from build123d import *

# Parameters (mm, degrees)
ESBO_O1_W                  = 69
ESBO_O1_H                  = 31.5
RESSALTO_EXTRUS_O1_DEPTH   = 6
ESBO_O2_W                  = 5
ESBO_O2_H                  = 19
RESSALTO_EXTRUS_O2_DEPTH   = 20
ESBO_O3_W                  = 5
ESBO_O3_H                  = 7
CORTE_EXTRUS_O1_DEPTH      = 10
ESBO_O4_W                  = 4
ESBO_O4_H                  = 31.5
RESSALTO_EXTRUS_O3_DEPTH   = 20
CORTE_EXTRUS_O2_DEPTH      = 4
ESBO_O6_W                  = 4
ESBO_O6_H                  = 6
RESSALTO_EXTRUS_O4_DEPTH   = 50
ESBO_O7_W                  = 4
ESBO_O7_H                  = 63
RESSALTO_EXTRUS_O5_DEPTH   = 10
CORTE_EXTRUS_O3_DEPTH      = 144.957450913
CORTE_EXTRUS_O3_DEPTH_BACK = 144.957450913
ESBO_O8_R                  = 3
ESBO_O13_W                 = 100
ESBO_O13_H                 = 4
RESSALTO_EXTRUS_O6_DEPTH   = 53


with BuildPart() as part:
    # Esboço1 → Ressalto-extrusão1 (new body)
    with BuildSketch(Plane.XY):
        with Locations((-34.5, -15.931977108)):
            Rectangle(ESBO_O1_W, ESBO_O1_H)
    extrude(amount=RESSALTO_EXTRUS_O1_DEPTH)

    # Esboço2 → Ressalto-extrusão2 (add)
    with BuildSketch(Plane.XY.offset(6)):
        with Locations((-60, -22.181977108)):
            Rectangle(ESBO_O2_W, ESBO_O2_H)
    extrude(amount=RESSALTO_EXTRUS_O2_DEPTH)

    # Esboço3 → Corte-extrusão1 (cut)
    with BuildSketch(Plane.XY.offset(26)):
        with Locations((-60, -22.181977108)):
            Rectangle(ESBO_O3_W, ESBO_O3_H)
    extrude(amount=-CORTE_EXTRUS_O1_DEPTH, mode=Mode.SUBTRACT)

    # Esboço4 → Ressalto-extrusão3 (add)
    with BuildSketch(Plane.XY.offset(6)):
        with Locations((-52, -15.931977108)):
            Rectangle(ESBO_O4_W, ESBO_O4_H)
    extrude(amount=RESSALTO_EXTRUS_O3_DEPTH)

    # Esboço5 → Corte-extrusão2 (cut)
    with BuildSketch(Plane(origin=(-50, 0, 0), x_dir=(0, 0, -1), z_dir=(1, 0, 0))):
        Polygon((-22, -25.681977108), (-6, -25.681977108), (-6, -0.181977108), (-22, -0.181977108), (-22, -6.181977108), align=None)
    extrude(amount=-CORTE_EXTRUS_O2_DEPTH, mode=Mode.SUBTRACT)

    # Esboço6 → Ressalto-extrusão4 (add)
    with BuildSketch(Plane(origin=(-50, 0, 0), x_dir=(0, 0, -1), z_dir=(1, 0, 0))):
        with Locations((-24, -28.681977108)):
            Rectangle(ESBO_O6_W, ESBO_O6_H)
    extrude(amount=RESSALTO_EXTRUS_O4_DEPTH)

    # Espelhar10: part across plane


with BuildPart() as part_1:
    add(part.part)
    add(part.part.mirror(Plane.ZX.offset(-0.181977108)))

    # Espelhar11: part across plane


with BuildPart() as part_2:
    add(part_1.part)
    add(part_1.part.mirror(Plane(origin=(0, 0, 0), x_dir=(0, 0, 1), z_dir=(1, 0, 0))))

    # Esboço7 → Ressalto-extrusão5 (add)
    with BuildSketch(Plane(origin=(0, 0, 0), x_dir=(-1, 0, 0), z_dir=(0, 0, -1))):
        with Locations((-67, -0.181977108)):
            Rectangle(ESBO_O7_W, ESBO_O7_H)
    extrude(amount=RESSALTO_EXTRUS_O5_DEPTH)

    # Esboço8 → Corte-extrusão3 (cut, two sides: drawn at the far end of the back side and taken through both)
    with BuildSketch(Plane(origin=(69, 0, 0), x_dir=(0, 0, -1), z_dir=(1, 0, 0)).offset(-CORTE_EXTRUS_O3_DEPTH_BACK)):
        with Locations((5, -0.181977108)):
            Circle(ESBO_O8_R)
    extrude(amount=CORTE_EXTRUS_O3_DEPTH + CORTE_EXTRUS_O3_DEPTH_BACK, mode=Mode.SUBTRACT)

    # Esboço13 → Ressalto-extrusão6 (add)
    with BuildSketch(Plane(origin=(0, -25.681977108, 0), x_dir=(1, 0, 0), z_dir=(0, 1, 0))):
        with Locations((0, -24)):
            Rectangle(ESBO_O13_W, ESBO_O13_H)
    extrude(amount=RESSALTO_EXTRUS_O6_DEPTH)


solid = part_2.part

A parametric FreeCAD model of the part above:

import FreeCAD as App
import Part
import Sketcher
Q = App.Units.Quantity

doc = App.newDocument("Part")
params = doc.addObject("Spreadsheet::Sheet", "Params")
for row, (alias, value) in enumerate([
    ("sketch1_width", "69 mm"),
    ("sketch1_height", "31.5 mm"),
    ("pad1_length", "6 mm"),
    ("sketch2_width", "5 mm"),
    ("sketch2_height", "19 mm"),
    ("pad2_length", "20 mm"),
    ("sketch3_width", "5 mm"),
    ("sketch3_height", "7 mm"),
    ("pocket1_length", "10 mm"),
    ("sketch4_width", "4 mm"),
    ("sketch4_height", "31.5 mm"),
    ("pad3_length", "20 mm"),
    ("sketch5_height", "16 mm"),
    ("sketch5_width", "25.5 mm"),
    ("pocket2_length", "4 mm"),
    ("sketch6_width", "6 mm"),
    ("sketch6_height", "4 mm"),
    ("pad4_length", "50 mm"),
    ("sketch7_width", "4 mm"),
    ("sketch7_height", "63 mm"),
    ("pad5_length", "10 mm"),
    ("sketch8_diameter", "6 mm"),
    ("sketch9_width", "100 mm"),
    ("sketch9_height", "4 mm"),
    ("pad6_length", "53 mm"),
], start=1):
    params.set(f"A{row}", alias)
    params.set(f"B{row}", "=" + value)
    params.setAlias(f"B{row}", alias)

body = doc.addObject("PartDesign::Body", "Body")

# Sketch on XY plane
sketch1 = doc.addObject("Sketcher::SketchObject", "Sketch")
body.addObject(sketch1)
sketch1.AttachmentSupport = (doc.XY_Plane, [""])
sketch1.MapMode = "FlatFace"
sketch1.addGeometry([
    Part.LineSegment(App.Vector(-69, 0, 0), App.Vector(-69, -32, 0)),
    Part.LineSegment(App.Vector(-69, -32, 0), App.Vector(0, -32, 0)),
    Part.LineSegment(App.Vector(0, -32, 0), App.Vector(0, 0, 0)),
    Part.LineSegment(App.Vector(0, 0, 0), App.Vector(-69, 0, 0)),
], False)
sketch1.addConstraint([
    Sketcher.Constraint("Coincident", 0, 2, 1, 1),
    Sketcher.Constraint("Coincident", 1, 2, 2, 1),
    Sketcher.Constraint("Coincident", 2, 2, 3, 1),
    Sketcher.Constraint("Coincident", 3, 2, 0, 1),
    Sketcher.Constraint("Vertical", 0),
    Sketcher.Constraint("Horizontal", 1),
    Sketcher.Constraint("Vertical", 2),
    Sketcher.Constraint("Horizontal", 3),
    Sketcher.Constraint("PointOnObject", 1, 2, -2),
    Sketcher.Constraint("DistanceX", 1, 1, 1, 2, Q("69 mm")),
    Sketcher.Constraint("DistanceY", 0, 2, 0, 1, Q("31.5 mm")),
    Sketcher.Constraint("DistanceY", 0, 2, -1, 1, Q("31.681977 mm")),
])
sketch1.setExpression("Constraints[9]", "Params.sketch1_width")
sketch1.setExpression("Constraints[10]", "Params.sketch1_height")
pad1 = doc.addObject("PartDesign::Pad", "Pad")
body.addObject(pad1)
pad1.Profile = sketch1
pad1.setExpression("Length", "Params.pad1_length")

# Sketch on XY plane
sketch2 = doc.addObject("Sketcher::SketchObject", "Sketch001")
body.addObject(sketch2)
sketch2.AttachmentSupport = (doc.XY_Plane, [""])
sketch2.MapMode = "FlatFace"
sketch2.AttachmentOffset = App.Placement(App.Vector(0, 0, 6), App.Rotation())
sketch2.addGeometry([
    Part.LineSegment(App.Vector(-62, -13, 0), App.Vector(-62, -32, 0)),
    Part.LineSegment(App.Vector(-62, -32, 0), App.Vector(-58, -32, 0)),
    Part.LineSegment(App.Vector(-58, -32, 0), App.Vector(-58, -13, 0)),
    Part.LineSegment(App.Vector(-58, -13, 0), App.Vector(-62, -13, 0)),
], False)
sketch2.addConstraint([
    Sketcher.Constraint("Coincident", 0, 2, 1, 1),
    Sketcher.Constraint("Coincident", 1, 2, 2, 1),
    Sketcher.Constraint("Coincident", 2, 2, 3, 1),
    Sketcher.Constraint("Coincident", 3, 2, 0, 1),
    Sketcher.Constraint("Vertical", 0),
    Sketcher.Constraint("Horizontal", 1),
    Sketcher.Constraint("Vertical", 2),
    Sketcher.Constraint("Horizontal", 3),
    Sketcher.Constraint("DistanceX", 1, 1, 1, 2, Q("5 mm")),
    Sketcher.Constraint("DistanceY", 0, 2, 0, 1, Q("19 mm")),
    Sketcher.Constraint("DistanceX", 0, 2, -1, 1, Q("62.5 mm")),
    Sketcher.Constraint("DistanceY", 0, 2, -1, 1, Q("31.681977 mm")),
])
sketch2.setExpression("Constraints[8]", "Params.sketch2_width")
sketch2.setExpression("Constraints[9]", "Params.sketch2_height")
pad2 = doc.addObject("PartDesign::Pad", "Pad001")
body.addObject(pad2)
pad2.Profile = sketch2
pad2.setExpression("Length", "Params.pad2_length")

# Sketch on XY plane
sketch3 = doc.addObject("Sketcher::SketchObject", "Sketch002")
body.addObject(sketch3)
sketch3.AttachmentSupport = (doc.XY_Plane, [""])
sketch3.MapMode = "FlatFace"
sketch3.AttachmentOffset = App.Placement(App.Vector(0, 0, 26), App.Rotation())
sketch3.addGeometry([
    Part.LineSegment(App.Vector(-62, -19, 0), App.Vector(-62, -26, 0)),
    Part.LineSegment(App.Vector(-62, -26, 0), App.Vector(-58, -26, 0)),
    Part.LineSegment(App.Vector(-58, -26, 0), App.Vector(-58, -19, 0)),
    Part.LineSegment(App.Vector(-58, -19, 0), App.Vector(-62, -19, 0)),
], False)
sketch3.addConstraint([
    Sketcher.Constraint("Coincident", 0, 2, 1, 1),
    Sketcher.Constraint("Coincident", 1, 2, 2, 1),
    Sketcher.Constraint("Coincident", 2, 2, 3, 1),
    Sketcher.Constraint("Coincident", 3, 2, 0, 1),
    Sketcher.Constraint("Vertical", 0),
    Sketcher.Constraint("Horizontal", 1),
    Sketcher.Constraint("Vertical", 2),
    Sketcher.Constraint("Horizontal", 3),
    Sketcher.Constraint("DistanceX", 1, 1, 1, 2, Q("5 mm")),
    Sketcher.Constraint("DistanceY", 0, 2, 0, 1, Q("7 mm")),
    Sketcher.Constraint("DistanceX", 0, 2, -1, 1, Q("62.5 mm")),
    Sketcher.Constraint("DistanceY", 0, 2, -1, 1, Q("25.681977 mm")),
])
sketch3.setExpression("Constraints[8]", "Params.sketch3_width")
sketch3.setExpression("Constraints[9]", "Params.sketch3_height")
pocket1 = doc.addObject("PartDesign::Pocket", "Pocket")
body.addObject(pocket1)
pocket1.Profile = sketch3
pocket1.setExpression("Length", "Params.pocket1_length")

# Sketch on XY plane
sketch4 = doc.addObject("Sketcher::SketchObject", "Sketch003")
body.addObject(sketch4)
sketch4.AttachmentSupport = (doc.XY_Plane, [""])
sketch4.MapMode = "FlatFace"
sketch4.AttachmentOffset = App.Placement(App.Vector(0, 0, 6), App.Rotation())
sketch4.addGeometry([
    Part.LineSegment(App.Vector(-54, -0.2, 0), App.Vector(-54, -31.7, 0)),
    Part.LineSegment(App.Vector(-54, -31.7, 0), App.Vector(-50, -31.7, 0)),
    Part.LineSegment(App.Vector(-50, -31.7, 0), App.Vector(-50, -0.2, 0)),
    Part.LineSegment(App.Vector(-50, -0.2, 0), App.Vector(-54, -0.2, 0)),
], False)
sketch4.addConstraint([
    Sketcher.Constraint("Coincident", 0, 2, 1, 1),
    Sketcher.Constraint("Coincident", 1, 2, 2, 1),
    Sketcher.Constraint("Coincident", 2, 2, 3, 1),
    Sketcher.Constraint("Coincident", 3, 2, 0, 1),
    Sketcher.Constraint("Vertical", 0),
    Sketcher.Constraint("Horizontal", 1),
    Sketcher.Constraint("Vertical", 2),
    Sketcher.Constraint("Horizontal", 3),
    Sketcher.Constraint("DistanceX", 1, 1, 1, 2, Q("4 mm")),
    Sketcher.Constraint("DistanceY", 0, 2, 0, 1, Q("31.5 mm")),
    Sketcher.Constraint("DistanceX", 0, 2, -1, 1, Q("54 mm")),
    Sketcher.Constraint("DistanceY", 0, 2, -1, 1, Q("31.681977 mm")),
])
sketch4.setExpression("Constraints[8]", "Params.sketch4_width")
sketch4.setExpression("Constraints[9]", "Params.sketch4_height")
pad3 = doc.addObject("PartDesign::Pad", "Pad002")
body.addObject(pad3)
pad3.Profile = sketch4
pad3.setExpression("Length", "Params.pad3_length")

# Sketch on YZ plane
sketch5 = doc.addObject("Sketcher::SketchObject", "Sketch004")
body.addObject(sketch5)
sketch5.AttachmentSupport = (doc.YZ_Plane, [""])
sketch5.MapMode = "FlatFace"
sketch5.AttachmentOffset = App.Placement(App.Vector(0, 0, -50), App.Rotation())
sketch5.addGeometry([
    Part.LineSegment(App.Vector(-26, 22, 0), App.Vector(-26, 6, 0)),
    Part.LineSegment(App.Vector(-26, 6, 0), App.Vector(0, 6, 0)),
    Part.LineSegment(App.Vector(0, 6, 0), App.Vector(0, 22, 0)),
    Part.LineSegment(App.Vector(0, 22, 0), App.Vector(-26, 22, 0)),
], False)
sketch5.addConstraint([
    Sketcher.Constraint("Coincident", 0, 2, 1, 1),
    Sketcher.Constraint("Coincident", 1, 2, 2, 1),
    Sketcher.Constraint("Coincident", 2, 2, 3, 1),
    Sketcher.Constraint("Coincident", 3, 2, 0, 1),
    Sketcher.Constraint("Vertical", 0),
    Sketcher.Constraint("Horizontal", 1),
    Sketcher.Constraint("Vertical", 2),
    Sketcher.Constraint("Horizontal", 3),
    Sketcher.Constraint("DistanceY", 0, 2, 0, 1, Q("16 mm")),
    Sketcher.Constraint("DistanceX", 1, 1, 1, 2, Q("25.5 mm")),
    Sketcher.Constraint("DistanceY", -1, 1, 0, 2, Q("6 mm")),
    Sketcher.Constraint("DistanceX", 0, 2, -1, 1, Q("25.681977 mm")),
])
sketch5.setExpression("Constraints[8]", "Params.sketch5_height")
sketch5.setExpression("Constraints[9]", "Params.sketch5_width")
pocket2 = doc.addObject("PartDesign::Pocket", "Pocket001")
body.addObject(pocket2)
pocket2.Profile = sketch5
pocket2.setExpression("Length", "Params.pocket2_length")

# Sketch on YZ plane
sketch6 = doc.addObject("Sketcher::SketchObject", "Sketch005")
body.addObject(sketch6)
sketch6.AttachmentSupport = (doc.YZ_Plane, [""])
sketch6.MapMode = "FlatFace"
sketch6.AttachmentOffset = App.Placement(App.Vector(0, 0, -50), App.Rotation())
sketch6.addGeometry([
    Part.LineSegment(App.Vector(-25.7, 26, 0), App.Vector(-31.7, 26, 0)),
    Part.LineSegment(App.Vector(-31.7, 26, 0), App.Vector(-31.7, 22, 0)),
    Part.LineSegment(App.Vector(-31.7, 22, 0), App.Vector(-25.7, 22, 0)),
    Part.LineSegment(App.Vector(-25.7, 22, 0), App.Vector(-25.7, 26, 0)),
], False)
sketch6.addConstraint([
    Sketcher.Constraint("Coincident", 0, 2, 1, 1),
    Sketcher.Constraint("Coincident", 1, 2, 2, 1),
    Sketcher.Constraint("Coincident", 2, 2, 3, 1),
    Sketcher.Constraint("Coincident", 3, 2, 0, 1),
    Sketcher.Constraint("Horizontal", 0),
    Sketcher.Constraint("Vertical", 1),
    Sketcher.Constraint("Horizontal", 2),
    Sketcher.Constraint("Vertical", 3),
    Sketcher.Constraint("DistanceX", 0, 2, 0, 1, Q("6 mm")),
    Sketcher.Constraint("DistanceY", 1, 2, 1, 1, Q("4 mm")),
    Sketcher.Constraint("DistanceY", -1, 1, 0, 2, Q("26 mm")),
    Sketcher.Constraint("DistanceX", 0, 2, -1, 1, Q("31.681977 mm")),
])
sketch6.setExpression("Constraints[8]", "Params.sketch6_width")
sketch6.setExpression("Constraints[9]", "Params.sketch6_height")
pad4 = doc.addObject("PartDesign::Pad", "Pad003")
body.addObject(pad4)
pad4.Profile = sketch6
pad4.setExpression("Length", "Params.pad4_length")
body2 = doc.addObject("PartDesign::Body", "Body001")
doc.recompute()

body2.BaseFeature = body
doc.recompute()

mirroring = doc.addObject("Part::Mirroring", "Mirroring")
mirroring.Source = body
mirroring.Base = App.Vector(0, -0.181977, 0)
mirroring.Normal = App.Vector(0, 1, 0)
body3 = doc.addObject("PartDesign::Body", "Body002")
body3.BaseFeature = mirroring
boolean = doc.addObject("PartDesign::Boolean", "Boolean")
body2.addObject(boolean)
boolean.Type = "Fuse"
boolean.addObjects([body3])
doc.recompute()
body4 = doc.addObject("PartDesign::Body", "Body003")
doc.recompute()

body4.BaseFeature = body2
doc.recompute()

mirroring2 = doc.addObject("Part::Mirroring", "Mirroring001")
mirroring2.Source = body2
mirroring2.Base = App.Vector(0, 0, 0)
mirroring2.Normal = App.Vector(1, 0, 0)
body5 = doc.addObject("PartDesign::Body", "Body004")
body5.BaseFeature = mirroring2
boolean2 = doc.addObject("PartDesign::Boolean", "Boolean001")
body4.addObject(boolean2)
boolean2.Type = "Fuse"
boolean2.addObjects([body5])
doc.recompute()

# Sketch on XY plane
sketch7 = doc.addObject("Sketcher::SketchObject", "Sketch006")
body4.addObject(sketch7)
sketch7.AttachmentSupport = (doc.getObject("XY_Plane003"), [""])
sketch7.MapMode = "FlatFace"
sketch7.addGeometry([
    Part.LineSegment(App.Vector(69, 31.3, 0), App.Vector(69, -31.7, 0)),
    Part.LineSegment(App.Vector(69, -31.7, 0), App.Vector(65, -31.7, 0)),
    Part.LineSegment(App.Vector(65, -31.7, 0), App.Vector(65, 31.3, 0)),
    Part.LineSegment(App.Vector(65, 31.3, 0), App.Vector(69, 31.3, 0)),
], False)
sketch7.addConstraint([
    Sketcher.Constraint("Coincident", 0, 2, 1, 1),
    Sketcher.Constraint("Coincident", 1, 2, 2, 1),
    Sketcher.Constraint("Coincident", 2, 2, 3, 1),
    Sketcher.Constraint("Coincident", 3, 2, 0, 1),
    Sketcher.Constraint("Vertical", 0),
    Sketcher.Constraint("Horizontal", 1),
    Sketcher.Constraint("Vertical", 2),
    Sketcher.Constraint("Horizontal", 3),
    Sketcher.Constraint("DistanceX", 1, 2, 1, 1, Q("4 mm")),
    Sketcher.Constraint("DistanceY", 0, 2, 0, 1, Q("63 mm")),
    Sketcher.Constraint("DistanceX", -1, 1, 0, 2, Q("69 mm")),
    Sketcher.Constraint("DistanceY", 0, 2, -1, 1, Q("31.681977 mm")),
])
sketch7.setExpression("Constraints[8]", "Params.sketch7_width")
sketch7.setExpression("Constraints[9]", "Params.sketch7_height")
pad5 = doc.addObject("PartDesign::Pad", "Pad004")
body4.addObject(pad5)
pad5.Profile = sketch7
pad5.setExpression("Length", "Params.pad5_length")
pad5.Reversed = True

# Sketch on YZ plane
sketch8 = doc.addObject("Sketcher::SketchObject", "Sketch007")
body4.addObject(sketch8)
sketch8.AttachmentSupport = (doc.getObject("YZ_Plane003"), [""])
sketch8.MapMode = "FlatFace"
sketch8.AttachmentOffset = App.Placement(App.Vector(0, 0, 69), App.Rotation())
sketch8.addGeometry(Part.Circle(App.Vector(-0.2, -5, 0), App.Vector(0, 0, 1), 3), False)
sketch8.addConstraint([
    Sketcher.Constraint("Diameter", 0, Q("6 mm")),
    Sketcher.Constraint("DistanceY", 0, 3, -1, 1, Q("5 mm")),
    Sketcher.Constraint("DistanceX", 0, 3, -1, 1, Q("0.181977 mm")),
])
sketch8.setExpression("Constraints[0]", "Params.sketch8_diameter")
pocket3 = doc.addObject("PartDesign::Pocket", "Pocket002")
body4.addObject(pocket3)
pocket3.Profile = sketch8
pocket3.Type = "ThroughAll"
pocket3.Midplane = True

# Sketch on XZ plane
sketch9 = doc.addObject("Sketcher::SketchObject", "Sketch008")
body4.addObject(sketch9)
sketch9.AttachmentSupport = (doc.getObject("XZ_Plane003"), [""])
sketch9.MapMode = "FlatFace"
sketch9.AttachmentOffset = App.Placement(App.Vector(0, 0, 25.681977), App.Rotation())
sketch9.addGeometry([
    Part.LineSegment(App.Vector(-50, 22, 0), App.Vector(-50, 26, 0)),
    Part.LineSegment(App.Vector(-50, 26, 0), App.Vector(50, 26, 0)),
    Part.LineSegment(App.Vector(50, 26, 0), App.Vector(50, 22, 0)),
    Part.LineSegment(App.Vector(50, 22, 0), App.Vector(-50, 22, 0)),
], False)
sketch9.addConstraint([
    Sketcher.Constraint("Coincident", 0, 2, 1, 1),
    Sketcher.Constraint("Coincident", 1, 2, 2, 1),
    Sketcher.Constraint("Coincident", 2, 2, 3, 1),
    Sketcher.Constraint("Coincident", 3, 2, 0, 1),
    Sketcher.Constraint("Vertical", 0),
    Sketcher.Constraint("Horizontal", 1),
    Sketcher.Constraint("Vertical", 2),
    Sketcher.Constraint("Horizontal", 3),
    Sketcher.Constraint("DistanceX", 1, 1, 1, 2, Q("100 mm")),
    Sketcher.Constraint("DistanceY", 0, 1, 0, 2, Q("4 mm")),
    Sketcher.Constraint("DistanceX", 0, 2, -1, 1, Q("50 mm")),
    Sketcher.Constraint("DistanceY", -1, 1, 0, 2, Q("26 mm")),
])
sketch9.setExpression("Constraints[8]", "Params.sketch9_width")
sketch9.setExpression("Constraints[9]", "Params.sketch9_height")
pad6 = doc.addObject("PartDesign::Pad", "Pad005")
body4.addObject(pad6)
pad6.Profile = sketch9
pad6.setExpression("Length", "Params.pad6_length")
pad6.Reversed = True
mirroring.Visibility = False
mirroring2.Visibility = False

doc.recompute()
